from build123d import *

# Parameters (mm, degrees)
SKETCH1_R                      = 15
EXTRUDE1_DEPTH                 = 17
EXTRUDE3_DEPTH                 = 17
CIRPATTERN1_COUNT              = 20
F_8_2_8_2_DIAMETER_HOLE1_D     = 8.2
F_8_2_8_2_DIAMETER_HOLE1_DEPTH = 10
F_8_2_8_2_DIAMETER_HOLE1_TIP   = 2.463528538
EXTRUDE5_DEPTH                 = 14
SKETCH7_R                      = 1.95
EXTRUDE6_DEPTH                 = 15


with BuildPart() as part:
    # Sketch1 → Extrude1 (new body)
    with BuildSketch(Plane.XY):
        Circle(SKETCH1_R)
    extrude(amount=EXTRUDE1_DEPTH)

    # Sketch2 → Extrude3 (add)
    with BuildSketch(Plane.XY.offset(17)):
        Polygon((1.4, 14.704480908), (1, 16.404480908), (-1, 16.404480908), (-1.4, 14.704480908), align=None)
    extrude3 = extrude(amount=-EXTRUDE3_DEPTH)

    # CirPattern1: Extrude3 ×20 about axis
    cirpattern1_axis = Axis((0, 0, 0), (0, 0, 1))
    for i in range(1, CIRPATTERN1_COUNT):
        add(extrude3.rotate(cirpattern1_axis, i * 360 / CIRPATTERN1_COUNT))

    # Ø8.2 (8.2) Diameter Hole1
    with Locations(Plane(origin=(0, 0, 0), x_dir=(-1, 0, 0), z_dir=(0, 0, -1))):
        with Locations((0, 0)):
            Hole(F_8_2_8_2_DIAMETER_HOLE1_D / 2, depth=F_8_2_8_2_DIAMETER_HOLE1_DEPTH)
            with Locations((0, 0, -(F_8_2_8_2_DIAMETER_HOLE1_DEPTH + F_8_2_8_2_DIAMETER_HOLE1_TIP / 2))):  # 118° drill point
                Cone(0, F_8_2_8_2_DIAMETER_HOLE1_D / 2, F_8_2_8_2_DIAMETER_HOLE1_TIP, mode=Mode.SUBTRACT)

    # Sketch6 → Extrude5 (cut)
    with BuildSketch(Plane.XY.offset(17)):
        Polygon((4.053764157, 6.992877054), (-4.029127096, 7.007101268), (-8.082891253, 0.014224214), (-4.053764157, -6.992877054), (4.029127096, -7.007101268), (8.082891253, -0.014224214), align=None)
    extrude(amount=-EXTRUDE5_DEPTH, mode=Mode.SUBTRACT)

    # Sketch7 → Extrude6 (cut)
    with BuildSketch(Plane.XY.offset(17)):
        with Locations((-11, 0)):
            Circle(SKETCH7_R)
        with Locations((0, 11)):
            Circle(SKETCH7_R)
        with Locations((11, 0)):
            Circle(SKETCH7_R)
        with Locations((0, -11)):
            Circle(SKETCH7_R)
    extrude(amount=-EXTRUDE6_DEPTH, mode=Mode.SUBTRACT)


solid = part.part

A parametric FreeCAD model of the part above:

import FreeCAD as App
import Part
import Sketcher


def add_polygon(sketch, points):
    """Adds a closed chain of lines whose ends are joined by coincident constraints."""
    first, n = sketch.GeometryCount, len(points)
    for a, b in zip(points, points[1:] + points[:1]):
        sketch.addGeometry(Part.LineSegment(App.Vector(*a, 0), App.Vector(*b, 0)), False)
    for i in range(n):
        sketch.addConstraint(Sketcher.Constraint("Coincident", first + i, 2, first + (i + 1) % n, 1))

doc = App.newDocument("Part")
body = doc.addObject("PartDesign::Body", "Body")

# Sketch on XY plane
sketch1 = body.newObject("Sketcher::SketchObject", "Sketch")
sketch1.AttachmentSupport = (doc.getObject("XY_Plane"), [""])
sketch1.MapMode = "FlatFace"
sketch1.addGeometry(Part.Circle(App.Vector(0, 0, 0), App.Vector(0, 0, 1), 15), False)
sketch1.addConstraint([
    Sketcher.Constraint("Coincident", 0, 3, -1, 1),
    Sketcher.Constraint("Diameter", 0, 30.0),
])
pad1 = body.newObject("PartDesign::Pad", "Pad")
pad1.Profile = sketch1
pad1.Length = 17

# Sketch on XY plane
sketch2 = body.newObject("Sketcher::SketchObject", "Sketch001")
sketch2.AttachmentSupport = (doc.getObject("XY_Plane"), [""])
sketch2.MapMode = "FlatFace"
sketch2.AttachmentOffset = App.Placement(App.Vector(0, 0, 17), App.Rotation())
add_polygon(sketch2, [(1.4, 14.704481), (1, 16.404481), (-1, 16.404481), (-1.4, 14.704481)])  # lines 0-3
sketch2.addConstraint([
    Sketcher.Constraint("Horizontal", 1),
    Sketcher.Constraint("Horizontal", 3),
    Sketcher.Constraint("Equal", 0, 2),
    Sketcher.Constraint("DistanceX", 1, 2, 1, 1, 2.0),
    Sketcher.Constraint("DistanceX", 3, 1, 3, 2, 2.8),
    Sketcher.Constraint("DistanceX", -1, 1, 0, 2, 1.0),
    Sketcher.Constraint("DistanceY", 2, 2, 1, 2, 1.7),
    Sketcher.Constraint("DistanceY", -1, 1, 0, 2, 16.404481),
])
pad2 = body.newObject("PartDesign::Pad", "Pad001")
pad2.Profile = sketch2
pad2.Length = 17
pad2.Reversed = True
doc.recompute()

polarpattern = body.newObject("PartDesign::PolarPattern", "PolarPattern")
polarpattern.Originals = [pad2]
polarpattern.Axis = (doc.getObject("Z_Axis"), [""])
polarpattern.Angle = 360
polarpattern.Occurrences = 20
body.Tip = polarpattern

# Sketch on XY plane
sketch3 = body.newObject("Sketcher::SketchObject", "Sketch002")
sketch3.AttachmentSupport = (doc.getObject("XY_Plane"), [""])
sketch3.MapMode = "FlatFace"
sketch3.addGeometry(Part.Circle(App.Vector(0, 0, 0), App.Vector(0, 0, 1), 4.1), False)
sketch3.addConstraint([
    Sketcher.Constraint("Coincident", 0, 3, -1, 1),
    Sketcher.Constraint("Diameter", 0, 8.2),
])
doc.recompute()
hole = body.newObject("PartDesign::Hole", "Hole")
hole.Profile = sketch3
hole.ThreadType = "None"
hole.Diameter = 8.2
hole.DepthType = "Dimension"
hole.Depth = 10
hole.DrillPoint = "Angled"
hole.DrillPointAngle = 118
hole.Reversed = True

# Sketch on XY plane
sketch4 = body.newObject("Sketcher::SketchObject", "Sketch003")
sketch4.AttachmentSupport = (doc.getObject("XY_Plane"), [""])
sketch4.MapMode = "FlatFace"
sketch4.AttachmentOffset = App.Placement(App.Vector(0, 0, 17), App.Rotation())
add_polygon(sketch4, [(4.053764, 6.992877), (-4.029127, 7.007101), (-8.082891, 0.014224), (-4.053764, -6.992877), (4.029127, -7.007101), (8.082891, -0.014224)])  # lines 0-5
sketch4.addConstraint([
    Sketcher.Constraint("Symmetric", 0, 2, 3, 2, -1, 1),
    Sketcher.Constraint("Symmetric", 1, 2, 4, 2, -1, 1),
    Sketcher.Constraint("Symmetric", 2, 2, 5, 2, -1, 1),
    Sketcher.Constraint("Equal", 0, 1),
    Sketcher.Constraint("Equal", 1, 2),
    Sketcher.Constraint("DistanceY", -1, 1, 0, 2, 7.007101),
    Sketcher.Constraint("DistanceY", 2, 2, 1, 2, 7.007101),
    Sketcher.Constraint("DistanceX", 1, 2, -1, 1, 8.082891),
    Sketcher.Constraint("DistanceY", 2, 2, 0, 2, 13.999978),
])
pocket1 = body.newObject("PartDesign::Pocket", "Pocket")
pocket1.Profile = sketch4
pocket1.Length = 14

# Sketch on XY plane
sketch5 = body.newObject("Sketcher::SketchObject", "Sketch004")
sketch5.AttachmentSupport = (doc.getObject("XY_Plane"), [""])
sketch5.MapMode = "FlatFace"
sketch5.AttachmentOffset = App.Placement(App.Vector(0, 0, 17), App.Rotation())
sketch5.addGeometry([
    Part.Circle(App.Vector(-11, 0, 0), App.Vector(0, 0, 1), 1.95),
    Part.Circle(App.Vector(0, 11, 0), App.Vector(0, 0, 1), 1.95),
    Part.Circle(App.Vector(11, 0, 0), App.Vector(0, 0, 1), 1.95),
    Part.Circle(App.Vector(0, -11, 0), App.Vector(0, 0, 1), 1.95),
], False)
sketch5.addConstraint([
    Sketcher.Constraint("Equal", 0, 1),
    Sketcher.Constraint("Equal", 1, 2),
    Sketcher.Constraint("Equal", 2, 3),
    Sketcher.Constraint("Symmetric", 0, 3, 2, 3, -1, 1),
    Sketcher.Constraint("Symmetric", 1, 3, 3, 3, -1, 1),
    Sketcher.Constraint("PointOnObject", 0, 3, -1),
    Sketcher.Constraint("PointOnObject", 1, 3, -2),
    Sketcher.Constraint("Diameter", 0, 3.9),
    Sketcher.Constraint("DistanceX", 0, 3, -1, 1, 11.0),
    Sketcher.Constraint("DistanceY", -1, 1, 1, 3, 11.0),
])
pocket2 = body.newObject("PartDesign::Pocket", "Pocket001")
pocket2.Profile = sketch5
pocket2.Length = 15

doc.recompute()
